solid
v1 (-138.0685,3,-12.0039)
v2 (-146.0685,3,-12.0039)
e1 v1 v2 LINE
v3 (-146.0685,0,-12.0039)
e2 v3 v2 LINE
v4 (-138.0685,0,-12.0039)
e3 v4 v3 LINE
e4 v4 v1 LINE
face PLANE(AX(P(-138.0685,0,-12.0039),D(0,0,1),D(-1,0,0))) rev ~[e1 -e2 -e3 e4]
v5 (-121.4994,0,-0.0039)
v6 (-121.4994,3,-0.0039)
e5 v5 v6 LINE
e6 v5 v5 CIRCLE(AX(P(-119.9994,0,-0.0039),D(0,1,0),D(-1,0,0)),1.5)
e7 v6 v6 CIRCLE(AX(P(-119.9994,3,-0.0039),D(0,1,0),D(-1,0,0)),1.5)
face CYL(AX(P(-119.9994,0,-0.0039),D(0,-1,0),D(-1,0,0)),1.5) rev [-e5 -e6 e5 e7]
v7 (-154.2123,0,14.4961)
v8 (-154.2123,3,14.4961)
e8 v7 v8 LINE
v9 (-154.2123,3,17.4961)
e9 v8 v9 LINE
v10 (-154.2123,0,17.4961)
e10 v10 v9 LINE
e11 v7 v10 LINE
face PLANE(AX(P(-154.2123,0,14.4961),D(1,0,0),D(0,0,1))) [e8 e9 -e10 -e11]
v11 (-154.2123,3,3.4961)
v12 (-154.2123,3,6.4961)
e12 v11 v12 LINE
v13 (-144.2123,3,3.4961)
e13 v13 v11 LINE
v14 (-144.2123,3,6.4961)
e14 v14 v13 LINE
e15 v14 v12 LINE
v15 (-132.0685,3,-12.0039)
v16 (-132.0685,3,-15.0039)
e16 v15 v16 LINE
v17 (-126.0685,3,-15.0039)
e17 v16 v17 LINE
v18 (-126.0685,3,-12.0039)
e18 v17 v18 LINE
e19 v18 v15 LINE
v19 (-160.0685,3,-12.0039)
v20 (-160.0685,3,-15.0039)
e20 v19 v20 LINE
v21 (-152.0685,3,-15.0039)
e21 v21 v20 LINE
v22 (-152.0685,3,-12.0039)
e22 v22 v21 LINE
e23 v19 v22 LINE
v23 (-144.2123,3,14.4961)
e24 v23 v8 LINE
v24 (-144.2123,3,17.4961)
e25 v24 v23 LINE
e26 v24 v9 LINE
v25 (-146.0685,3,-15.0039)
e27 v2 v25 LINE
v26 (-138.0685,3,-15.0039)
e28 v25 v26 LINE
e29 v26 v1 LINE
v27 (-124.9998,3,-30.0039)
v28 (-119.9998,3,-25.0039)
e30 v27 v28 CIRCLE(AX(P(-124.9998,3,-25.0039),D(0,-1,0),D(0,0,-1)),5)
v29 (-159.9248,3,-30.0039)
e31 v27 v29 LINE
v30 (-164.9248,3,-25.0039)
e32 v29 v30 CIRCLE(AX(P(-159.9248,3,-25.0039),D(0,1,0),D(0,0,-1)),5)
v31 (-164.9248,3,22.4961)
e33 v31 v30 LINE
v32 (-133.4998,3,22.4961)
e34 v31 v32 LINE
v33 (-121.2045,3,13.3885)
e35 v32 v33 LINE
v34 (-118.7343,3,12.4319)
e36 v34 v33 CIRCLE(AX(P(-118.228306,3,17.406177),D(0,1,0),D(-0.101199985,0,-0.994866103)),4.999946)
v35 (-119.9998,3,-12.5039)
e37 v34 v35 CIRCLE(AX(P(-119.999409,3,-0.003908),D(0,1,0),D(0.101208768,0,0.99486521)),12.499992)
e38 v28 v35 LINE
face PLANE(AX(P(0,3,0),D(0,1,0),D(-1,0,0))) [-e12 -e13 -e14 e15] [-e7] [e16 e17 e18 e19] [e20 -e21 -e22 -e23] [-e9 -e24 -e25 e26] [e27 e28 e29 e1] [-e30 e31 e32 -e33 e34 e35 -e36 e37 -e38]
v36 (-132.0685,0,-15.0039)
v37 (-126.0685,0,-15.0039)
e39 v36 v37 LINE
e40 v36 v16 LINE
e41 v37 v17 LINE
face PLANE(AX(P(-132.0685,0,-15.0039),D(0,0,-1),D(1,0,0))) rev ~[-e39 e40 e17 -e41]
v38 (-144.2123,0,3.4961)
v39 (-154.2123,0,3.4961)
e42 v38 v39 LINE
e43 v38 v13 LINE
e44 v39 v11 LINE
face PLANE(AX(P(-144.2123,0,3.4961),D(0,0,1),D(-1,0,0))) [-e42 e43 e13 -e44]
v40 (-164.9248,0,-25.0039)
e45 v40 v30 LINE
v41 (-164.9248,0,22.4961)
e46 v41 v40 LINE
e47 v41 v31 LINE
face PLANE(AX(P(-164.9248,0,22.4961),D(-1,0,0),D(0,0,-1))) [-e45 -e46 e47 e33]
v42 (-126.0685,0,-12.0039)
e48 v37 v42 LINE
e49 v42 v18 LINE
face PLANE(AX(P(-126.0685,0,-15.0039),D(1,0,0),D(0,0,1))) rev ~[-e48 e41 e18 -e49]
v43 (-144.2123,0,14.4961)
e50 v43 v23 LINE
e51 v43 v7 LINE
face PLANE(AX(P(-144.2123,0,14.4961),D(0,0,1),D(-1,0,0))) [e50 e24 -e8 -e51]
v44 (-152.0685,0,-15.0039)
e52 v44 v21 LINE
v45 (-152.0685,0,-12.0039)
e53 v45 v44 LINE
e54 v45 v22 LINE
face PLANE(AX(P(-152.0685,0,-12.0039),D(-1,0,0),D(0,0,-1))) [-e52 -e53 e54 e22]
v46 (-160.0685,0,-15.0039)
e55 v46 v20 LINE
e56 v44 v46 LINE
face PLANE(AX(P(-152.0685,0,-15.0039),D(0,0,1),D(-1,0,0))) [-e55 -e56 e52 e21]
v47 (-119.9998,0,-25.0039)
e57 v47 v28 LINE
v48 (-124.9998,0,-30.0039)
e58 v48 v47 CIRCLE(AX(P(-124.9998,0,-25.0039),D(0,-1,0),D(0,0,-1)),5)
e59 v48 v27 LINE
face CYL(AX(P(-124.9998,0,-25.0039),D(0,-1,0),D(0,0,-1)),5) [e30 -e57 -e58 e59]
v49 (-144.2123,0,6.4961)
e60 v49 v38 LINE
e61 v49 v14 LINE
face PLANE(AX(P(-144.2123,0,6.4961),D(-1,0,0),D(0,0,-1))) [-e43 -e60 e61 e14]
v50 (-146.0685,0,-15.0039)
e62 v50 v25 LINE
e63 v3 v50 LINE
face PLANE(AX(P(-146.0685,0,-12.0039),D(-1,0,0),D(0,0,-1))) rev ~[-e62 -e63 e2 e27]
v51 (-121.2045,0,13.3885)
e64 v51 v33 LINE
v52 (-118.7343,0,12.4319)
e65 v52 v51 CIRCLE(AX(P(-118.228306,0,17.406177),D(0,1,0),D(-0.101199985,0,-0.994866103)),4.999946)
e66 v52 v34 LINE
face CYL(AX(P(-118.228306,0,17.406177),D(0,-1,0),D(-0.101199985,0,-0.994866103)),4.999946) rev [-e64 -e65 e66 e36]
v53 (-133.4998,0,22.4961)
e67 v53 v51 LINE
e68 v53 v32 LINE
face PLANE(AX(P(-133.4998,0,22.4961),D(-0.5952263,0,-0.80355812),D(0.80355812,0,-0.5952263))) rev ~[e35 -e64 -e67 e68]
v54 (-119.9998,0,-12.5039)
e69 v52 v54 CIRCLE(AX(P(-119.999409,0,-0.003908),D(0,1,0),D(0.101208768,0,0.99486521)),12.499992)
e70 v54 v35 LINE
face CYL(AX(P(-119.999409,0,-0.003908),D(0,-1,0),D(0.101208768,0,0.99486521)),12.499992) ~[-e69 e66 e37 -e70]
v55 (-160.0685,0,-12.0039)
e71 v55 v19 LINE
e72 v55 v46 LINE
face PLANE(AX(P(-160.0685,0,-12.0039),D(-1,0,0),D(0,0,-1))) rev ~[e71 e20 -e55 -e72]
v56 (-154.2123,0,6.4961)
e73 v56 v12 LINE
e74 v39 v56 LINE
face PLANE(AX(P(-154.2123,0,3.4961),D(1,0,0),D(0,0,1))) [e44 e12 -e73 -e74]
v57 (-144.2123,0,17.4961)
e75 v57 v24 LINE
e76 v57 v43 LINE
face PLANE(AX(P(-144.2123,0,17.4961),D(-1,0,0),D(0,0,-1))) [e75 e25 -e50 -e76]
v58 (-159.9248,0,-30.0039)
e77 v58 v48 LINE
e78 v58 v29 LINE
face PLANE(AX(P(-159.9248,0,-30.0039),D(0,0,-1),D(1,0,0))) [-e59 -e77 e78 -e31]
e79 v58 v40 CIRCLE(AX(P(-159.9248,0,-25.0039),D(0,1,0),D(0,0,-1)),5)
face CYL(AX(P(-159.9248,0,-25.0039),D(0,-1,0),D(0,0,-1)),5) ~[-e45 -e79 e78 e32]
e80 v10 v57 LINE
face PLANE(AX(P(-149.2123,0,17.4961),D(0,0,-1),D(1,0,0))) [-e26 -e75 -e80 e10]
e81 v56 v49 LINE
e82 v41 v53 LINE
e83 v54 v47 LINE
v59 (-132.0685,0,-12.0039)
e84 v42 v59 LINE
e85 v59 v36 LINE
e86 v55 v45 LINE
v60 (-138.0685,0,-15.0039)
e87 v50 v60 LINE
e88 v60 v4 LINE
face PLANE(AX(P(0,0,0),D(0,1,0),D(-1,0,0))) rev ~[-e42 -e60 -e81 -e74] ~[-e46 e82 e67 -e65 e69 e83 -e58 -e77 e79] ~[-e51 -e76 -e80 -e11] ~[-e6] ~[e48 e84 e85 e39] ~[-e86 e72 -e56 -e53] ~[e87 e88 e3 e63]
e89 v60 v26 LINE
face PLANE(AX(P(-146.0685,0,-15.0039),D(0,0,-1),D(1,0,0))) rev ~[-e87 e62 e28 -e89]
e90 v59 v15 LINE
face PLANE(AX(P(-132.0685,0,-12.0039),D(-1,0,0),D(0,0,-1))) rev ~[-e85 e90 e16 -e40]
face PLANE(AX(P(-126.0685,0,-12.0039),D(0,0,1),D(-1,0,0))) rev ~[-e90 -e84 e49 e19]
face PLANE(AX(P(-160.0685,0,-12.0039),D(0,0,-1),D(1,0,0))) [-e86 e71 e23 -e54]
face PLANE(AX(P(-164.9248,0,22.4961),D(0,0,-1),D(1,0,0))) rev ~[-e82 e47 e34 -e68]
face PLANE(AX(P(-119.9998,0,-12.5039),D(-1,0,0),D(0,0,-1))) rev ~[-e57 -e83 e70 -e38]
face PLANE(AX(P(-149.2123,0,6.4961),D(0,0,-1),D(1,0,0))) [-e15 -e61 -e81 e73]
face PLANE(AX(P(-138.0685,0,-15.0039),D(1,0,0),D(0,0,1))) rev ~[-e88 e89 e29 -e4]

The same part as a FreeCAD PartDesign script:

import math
import FreeCAD as App
import Part
import Sketcher
Q = App.Units.Quantity


def add_polygon(sketch, points):
    """Adds a closed chain of lines whose ends are joined by coincident constraints."""
    first, n = sketch.GeometryCount, len(points)
    for a, b in zip(points, points[1:] + points[:1]):
        sketch.addGeometry(Part.LineSegment(App.Vector(*a, 0), App.Vector(*b, 0)), False)
    for i in range(n):
        sketch.addConstraint(Sketcher.Constraint("Coincident", first + i, 2, first + (i + 1) % n, 1))

doc = App.newDocument("Part")
params = doc.addObject("Spreadsheet::Sheet", "Params")
for row, (alias, value) in enumerate([
    ("sketch1_radius", "5 mm"),
    ("sketch1_width", "6 mm"),
    ("sketch1_width2", "8 mm"),
    ("sketch1_diameter", "3 mm"),
    ("sketch1_radius2", "12.5 mm"),
    ("pad1_length", "3 mm"),
    ("sketch2_radius", "5 mm"),
    ("pocket1_length", "10 mm"),
], start=1):
    params.set(f"A{row}", alias)
    params.set(f"B{row}", "=" + value)
    params.setAlias(f"B{row}", alias)

body = doc.addObject("PartDesign::Body", "Body")

# Sketch on XZ plane
sketch1 = doc.addObject("Sketcher::SketchObject", "Sketch")
body.addObject(sketch1)
sketch1.AttachmentSupport = (doc.XZ_Plane, [""])
sketch1.MapMode = "FlatFace"
sketch1.addGeometry(Part.ArcOfCircle(Part.Circle(App.Vector(-115, -21.3, 0), App.Vector(0, 0, 1), 5), math.radians(180), math.radians(240)), False)  # 0
sketch1.addGeometry(Part.ArcOfCircle(Part.Circle(App.Vector(-120, -30, 0), App.Vector(0, 0, 1), 5), math.radians(-150), math.radians(60)), False)  # 1
sketch1.addGeometry(Part.ArcOfCircle(Part.Circle(App.Vector(-128.7, -35, 0), App.Vector(0, 0, 1), 5), math.radians(30), math.radians(90)), False)  # 2
sketch1.addGeometry(Part.LineSegment(App.Vector(-128.7, -30, 0), App.Vector(-159.9, -30, 0)), False)  # 3
sketch1.addGeometry(Part.ArcOfCircle(Part.Circle(App.Vector(-159.9, -25, 0), App.Vector(0, 0, 1), 5), math.radians(180), math.radians(270)), False)  # 4
sketch1.addGeometry(Part.LineSegment(App.Vector(-164.9, -25, 0), App.Vector(-164.9, 22.5, 0)), False)  # 5
sketch1.addGeometry(Part.LineSegment(App.Vector(-164.9, 22.5, 0), App.Vector(-133.5, 22.5, 0)), False)  # 6
sketch1.addGeometry(Part.LineSegment(App.Vector(-133.5, 22.5, 0), App.Vector(-121.2, 13.4, 0)), False)  # 7
sketch1.addGeometry(Part.ArcOfCircle(Part.Circle(App.Vector(-118.2, 17.4, 0), App.Vector(0, 0, 1), 5), math.radians(-127), math.radians(-96)), False)  # 8
sketch1.addGeometry(Part.ArcOfCircle(Part.Circle(App.Vector(-120, 0, 0), App.Vector(0, 0, 1), 12.5), math.radians(-90), math.radians(84)), False)  # 9
sketch1.addGeometry(Part.LineSegment(App.Vector(-120, -12.5, 0), App.Vector(-120, -21.3, 0)), False)  # 10
sketch1.addGeometry(Part.Circle(App.Vector(-120, -30, 0), App.Vector(0, 0, 1), 1.5), False)  # 11
add_polygon(sketch1, [(-126.1, -12), (-132.1, -12), (-132.1, -15), (-126.1, -15)])  # lines 12-15
add_polygon(sketch1, [(-138.1, -12), (-146.1, -12), (-146.1, -15), (-138.1, -15)])  # lines 16-19
add_polygon(sketch1, [(-152.1, -12), (-160.1, -12), (-160.1, -15), (-152.1, -15)])  # lines 20-23
sketch1.addGeometry(Part.Circle(App.Vector(-120, 0, 0), App.Vector(0, 0, 1), 1.5), False)  # 24
add_polygon(sketch1, [(-144.2, 6.5), (-154.2, 6.5), (-154.2, 3.5), (-144.2, 3.5)])  # lines 25-28
add_polygon(sketch1, [(-144.2, 17.5), (-154.2, 17.5), (-154.2, 14.5), (-144.2, 14.5)])  # lines 29-32
sketch1.addConstraint([
    Sketcher.Constraint("Tangent", 0, 2, 1, 2),
    Sketcher.Constraint("Tangent", 1, 1, 2, 1),
    Sketcher.Constraint("Tangent", 2, 2, 3, 1),
    Sketcher.Constraint("Tangent", 3, 2, 4, 2),
    Sketcher.Constraint("Tangent", 4, 1, 5, 1),
    Sketcher.Constraint("Coincident", 5, 2, 6, 1),
    Sketcher.Constraint("Coincident", 6, 2, 7, 1),
    Sketcher.Constraint("Tangent", 7, 2, 8, 1),
    Sketcher.Constraint("Tangent", 8, 2, 9, 2),
    Sketcher.Constraint("Coincident", 9, 1, 10, 1),
    Sketcher.Constraint("Tangent", 10, 2, 0, 1),
    Sketcher.Constraint("Horizontal", 3),
    Sketcher.Constraint("Vertical", 5),
    Sketcher.Constraint("Horizontal", 6),
    Sketcher.Constraint("Vertical", 10),
    Sketcher.Constraint("Horizontal", 12),
    Sketcher.Constraint("Vertical", 13),
    Sketcher.Constraint("Horizontal", 14),
    Sketcher.Constraint("Vertical", 15),
    Sketcher.Constraint("Horizontal", 16),
    Sketcher.Constraint("Vertical", 17),
    Sketcher.Constraint("Horizontal", 18),
    Sketcher.Constraint("Vertical", 19),
    Sketcher.Constraint("Horizontal", 20),
    Sketcher.Constraint("Vertical", 21),
    Sketcher.Constraint("Horizontal", 22),
    Sketcher.Constraint("Vertical", 23),
    Sketcher.Constraint("Horizontal", 25),
    Sketcher.Constraint("Vertical", 26),
    Sketcher.Constraint("Horizontal", 27),
    Sketcher.Constraint("Vertical", 28),
    Sketcher.Constraint("Horizontal", 29),
    Sketcher.Constraint("Vertical", 30),
    Sketcher.Constraint("Horizontal", 31),
    Sketcher.Constraint("Vertical", 32),
    Sketcher.Constraint("Coincident", 11, 3, 1, 3),
    Sketcher.Constraint("Coincident", 24, 3, 9, 3),
    Sketcher.Constraint("Equal", 0, 1),
    Sketcher.Constraint("Equal", 1, 2),
    Sketcher.Constraint("Equal", 2, 4),
    Sketcher.Constraint("Equal", 4, 8),
    Sketcher.Constraint("Equal", 11, 24),
    Sketcher.Constraint("Horizontal", 11, 3, 2, 2),
    Sketcher.Constraint("Horizontal", 15, 2, 16, 2),
    Sketcher.Constraint("Horizontal", 14, 2, 17, 2),
    Sketcher.Constraint("Horizontal", 19, 2, 20, 2),
    Sketcher.Constraint("Horizontal", 18, 2, 21, 2),
    Sketcher.Constraint("Vertical", 11, 3, 9, 1),
    Sketcher.Constraint("Vertical", 26, 2, 29, 2),
    Sketcher.Constraint("Vertical", 28, 2, 31, 2),
    Sketcher.Constraint("Equal", 18, 20),
    Sketcher.Constraint("Equal", 23, 26),
    Sketcher.Constraint("Equal", 28, 30),
    Sketcher.Constraint("Radius", 0, Q("5 mm")),
    Sketcher.Constraint("DistanceX", 12, 2, 12, 1, Q("6 mm")),
    Sketcher.Constraint("DistanceX", 16, 2, 16, 1, Q("8 mm")),
    Sketcher.Constraint("Diameter", 11, Q("3 mm")),
    Sketcher.Constraint("DistanceX", 18, 2, 13, 2, Q("6 mm")),
    Sketcher.Constraint("DistanceX", 22, 2, 17, 2, Q("6 mm")),
    Sketcher.Constraint("DistanceY", 29, 2, 5, 2, Q("5 mm")),
    Sketcher.Constraint("DistanceY", 25, 2, 30, 2, Q("8 mm")),
    Sketcher.Constraint("DistanceY", 30, 2, 5, 2, Q("8 mm")),
    Sketcher.Constraint("Radius", 9, Q("12.5 mm")),
    Sketcher.Constraint("DistanceX", 25, 2, 25, 1, Q("10 mm")),
    Sketcher.Constraint("DistanceY", 5, 1, 5, 2, Q("47.5 mm")),
    Sketcher.Constraint("DistanceY", 1, 3, 9, 3, Q("30 mm")),
    Sketcher.Constraint("DistanceY", 12, 2, 9, 3, Q("12 mm")),
    Sketcher.Constraint("DistanceX", 9, 3, 0, 3, Q("4.9996 mm")),
    Sketcher.Constraint("DistanceX", 6, 2, 0, 3, Q("18.5 mm")),
    Sketcher.Constraint("DistanceX", 6, 1, 6, 2, Q("31.425 mm")),
    Sketcher.Constraint("DistanceX", 2, 3, -1, 1, Q("128.66 mm")),
    Sketcher.Constraint("DistanceY", 0, 3, 8, 3, Q("38.75 mm")),
    Sketcher.Constraint("DistanceY", 1, 3, -1, 1, Q("30.004 mm")),
    Sketcher.Constraint("DistanceX", 12, 2, 9, 3, Q("12.069 mm")),
    Sketcher.Constraint("DistanceX", 25, 2, -1, 1, Q("154.2123 mm")),
])
sketch1.setExpression("Constraints[73]", "Params.sketch1_radius")
sketch1.setExpression("Constraints[74]", "Params.sketch1_width")
sketch1.setExpression("Constraints[75]", "Params.sketch1_width2")
sketch1.setExpression("Constraints[76]", "Params.sketch1_diameter")
sketch1.setExpression("Constraints[82]", "Params.sketch1_radius2")
pad1 = doc.addObject("PartDesign::Pad", "Pad")
body.addObject(pad1)
pad1.Profile = sketch1
pad1.setExpression("Length", "Params.pad1_length")
pad1.Reversed = True

# Sketch on XZ plane
sketch2 = doc.addObject("Sketcher::SketchObject", "Sketch001")
body.addObject(sketch2)
sketch2.AttachmentSupport = (doc.XZ_Plane, [""])
sketch2.MapMode = "FlatFace"
sketch2.addGeometry([
    Part.LineSegment(App.Vector(-125, -30, 0), App.Vector(-128.7, -30, 0)),  # 0
    Part.LineSegment(App.Vector(-128.7, -30, 0), App.Vector(-116.8, -39.5, 0)),  # 1
    Part.LineSegment(App.Vector(-116.8, -39.5, 0), App.Vector(-111.1, -30.5, 0)),  # 2
    Part.LineSegment(App.Vector(-111.1, -30.5, 0), App.Vector(-120, -21.3, 0)),  # 3
    Part.LineSegment(App.Vector(-120, -21.3, 0), App.Vector(-120, -25, 0)),  # 4
    Part.ArcOfCircle(Part.Circle(App.Vector(-125, -25, 0), App.Vector(0, 0, 1), 5), math.radians(-90), math.radians(0)),  # 5
], False)
sketch2.addConstraint([
    Sketcher.Constraint("Coincident", 0, 2, 1, 1),
    Sketcher.Constraint("Coincident", 1, 2, 2, 1),
    Sketcher.Constraint("Coincident", 2, 2, 3, 1),
    Sketcher.Constraint("Coincident", 3, 2, 4, 1),
    Sketcher.Constraint("Tangent", 4, 2, 5, 2),
    Sketcher.Constraint("Tangent", 5, 1, 0, 1),
    Sketcher.Constraint("Horizontal", 0),
    Sketcher.Constraint("Vertical", 4),
    Sketcher.Constraint("Equal", 0, 4),
    Sketcher.Constraint("Radius", 5, Q("5 mm")),
    Sketcher.Constraint("Angle", 1, Q("-38.6908 deg")),
    Sketcher.Constraint("DistanceX", 0, 2, -1, 1, Q("128.66 mm")),
    Sketcher.Constraint("Distance", 3, Q("12.754 mm")),
    Sketcher.Constraint("DistanceX", 0, 2, 0, 1, Q("3.6602 mm")),
    Sketcher.Constraint("DistanceY", 5, 3, -1, 1, Q("25.004 mm")),
    Sketcher.Constraint("DistanceX", 2, 2, -1, 1, Q("111.143 mm")),
    Sketcher.Constraint("Distance", 1, Q("15.2445 mm")),
])
sketch2.setExpression("Constraints[9]", "Params.sketch2_radius")
pocket1 = doc.addObject("PartDesign::Pocket", "Pocket")
body.addObject(pocket1)
pocket1.Profile = sketch2
pocket1.setExpression("Length", "Params.pocket1_length")

doc.recompute()
